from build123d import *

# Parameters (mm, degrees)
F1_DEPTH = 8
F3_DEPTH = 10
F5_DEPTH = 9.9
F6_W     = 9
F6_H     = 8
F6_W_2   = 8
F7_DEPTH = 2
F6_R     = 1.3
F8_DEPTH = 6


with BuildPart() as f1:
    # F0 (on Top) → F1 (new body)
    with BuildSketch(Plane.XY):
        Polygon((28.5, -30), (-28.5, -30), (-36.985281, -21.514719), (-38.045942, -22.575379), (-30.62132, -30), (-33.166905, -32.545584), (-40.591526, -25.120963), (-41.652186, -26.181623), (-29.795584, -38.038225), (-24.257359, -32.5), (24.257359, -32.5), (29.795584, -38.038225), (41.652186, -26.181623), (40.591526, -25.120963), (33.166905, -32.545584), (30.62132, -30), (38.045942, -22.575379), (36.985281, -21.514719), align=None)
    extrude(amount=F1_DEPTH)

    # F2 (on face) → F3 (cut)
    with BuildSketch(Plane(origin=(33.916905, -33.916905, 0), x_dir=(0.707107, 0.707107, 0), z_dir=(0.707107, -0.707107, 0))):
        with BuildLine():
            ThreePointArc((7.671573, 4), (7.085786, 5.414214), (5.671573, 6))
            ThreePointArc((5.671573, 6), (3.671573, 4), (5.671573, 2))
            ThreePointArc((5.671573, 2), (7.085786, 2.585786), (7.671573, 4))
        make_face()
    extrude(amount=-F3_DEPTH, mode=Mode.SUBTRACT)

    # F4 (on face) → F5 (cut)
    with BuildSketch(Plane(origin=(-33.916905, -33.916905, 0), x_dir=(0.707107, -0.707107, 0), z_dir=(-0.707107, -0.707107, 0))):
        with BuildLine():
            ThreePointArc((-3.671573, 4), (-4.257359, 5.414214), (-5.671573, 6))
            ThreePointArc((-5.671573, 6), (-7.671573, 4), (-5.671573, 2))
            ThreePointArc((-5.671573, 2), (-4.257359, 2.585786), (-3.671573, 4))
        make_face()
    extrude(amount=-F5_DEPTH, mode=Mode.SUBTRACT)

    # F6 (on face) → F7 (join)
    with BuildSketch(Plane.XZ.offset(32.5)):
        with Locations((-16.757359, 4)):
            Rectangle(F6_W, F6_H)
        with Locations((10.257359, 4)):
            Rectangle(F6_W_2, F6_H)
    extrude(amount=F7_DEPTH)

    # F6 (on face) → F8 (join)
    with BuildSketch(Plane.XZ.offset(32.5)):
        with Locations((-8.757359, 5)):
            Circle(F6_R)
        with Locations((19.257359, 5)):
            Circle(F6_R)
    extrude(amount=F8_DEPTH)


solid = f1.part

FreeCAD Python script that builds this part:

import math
import FreeCAD as App
import Part
import Sketcher
from FreeCAD import Vector


def add_polygon(sketch, points):
    """Adds a closed chain of lines whose ends are joined by coincident constraints."""
    first, n = sketch.GeometryCount, len(points)
    for a, b in zip(points, points[1:] + points[:1]):
        sketch.addGeometry(Part.LineSegment(App.Vector(*a, 0), App.Vector(*b, 0)), False)
    for i in range(n):
        sketch.addConstraint(Sketcher.Constraint("Coincident", first + i, 2, first + (i + 1) % n, 1))

doc = App.newDocument("Part")
body = doc.addObject("PartDesign::Body", "Body")

# Sketch on XY plane
sketch1 = body.newObject("Sketcher::SketchObject", "Sketch")
sketch1.AttachmentSupport = (doc.getObject("XY_Plane"), [""])
sketch1.MapMode = "FlatFace"
add_polygon(sketch1, [(28.5, -30), (-28.5, -30), (-37, -21.5), (-38, -22.6), (-30.6, -30), (-33.2, -32.5), (-40.6, -25.1), (-41.7, -26.2), (-29.8, -38), (-24.3, -32.5), (24.3, -32.5), (29.8, -38), (41.7, -26.2), (40.6, -25.1), (33.2, -32.5), (30.6, -30), (38, -22.6), (37, -21.5)])  # lines 0-17
sketch1.addConstraint([
    Sketcher.Constraint("Horizontal", 0),
    Sketcher.Constraint("Horizontal", 9),
    Sketcher.Constraint("Symmetric", 7, 2, 10, 2, -2),
    Sketcher.Constraint("Symmetric", 6, 2, 11, 2, -2),
    Sketcher.Constraint("Symmetric", 5, 2, 12, 2, -2),
    Sketcher.Constraint("Symmetric", 4, 2, 13, 2, -2),
    Sketcher.Constraint("Symmetric", 3, 2, 14, 2, -2),
    Sketcher.Constraint("Symmetric", 2, 2, 15, 2, -2),
    Sketcher.Constraint("Symmetric", 1, 2, 16, 2, -2),
    Sketcher.Constraint("Perpendicular", 1, 2),
    Sketcher.Constraint("Perpendicular", 2, 3),
    Sketcher.Constraint("Perpendicular", 3, 4),
    Sketcher.Constraint("Perpendicular", 4, 5),
    Sketcher.Constraint("Perpendicular", 5, 6),
    Sketcher.Constraint("Perpendicular", 6, 7),
    Sketcher.Constraint("Perpendicular", 7, 8),
    Sketcher.Constraint("Perpendicular", 8, 10),
    Sketcher.Constraint("Perpendicular", 10, 11),
    Sketcher.Constraint("Perpendicular", 16, 17),
    Sketcher.Constraint("Horizontal", 0, 2, 3, 2),
    Sketcher.Constraint("Equal", 3, 5),
    Sketcher.Constraint("Equal", 2, 6),
    Sketcher.Constraint("DistanceX", 0, 2, 0, 1, 57.0),
    Sketcher.Constraint("Distance", 1, 11.999999),
    Sketcher.Constraint("DistanceY", 0, 2, -1, 1, 30.0),
    Sketcher.Constraint("Distance", 2, 1.5),
    Sketcher.Constraint("Distance", 4, 3.6),
    Sketcher.Constraint("DistanceY", 8, 2, -1, 1, 32.5),
    Sketcher.Constraint("DistanceX", 9, 1, 9, 2, 48.514718),
])
pad1 = body.newObject("PartDesign::Pad", "Pad")
pad1.Profile = sketch1
pad1.Length = 8

# Sketch on an angled plane
sketch2 = body.newObject("Sketcher::SketchObject", "Sketch001")
sketch2.Placement = App.Placement(Vector(33.916905, -33.916905, 0), App.Rotation(Vector(0.707106781, 0.707106781, 0), Vector(0, 0, 0.999999999), Vector(0.707106781, -0.707106781, 0), "ZXY"))
sketch2.addGeometry([
    Part.ArcOfCircle(Part.Circle(Vector(5.7, 4, 0), Vector(0, 0, 1), 2), math.radians(0), math.radians(90)),
    Part.ArcOfCircle(Part.Circle(Vector(5.7, 4, 0), Vector(0, 0, 1), 2), math.radians(90), math.radians(270)),
    Part.ArcOfCircle(Part.Circle(Vector(5.7, 4, 0), Vector(0, 0, 1), 2), math.radians(-90), math.radians(0)),
], False)
sketch2.addConstraint([
    Sketcher.Constraint("Tangent", 0, 2, 1, 1),
    Sketcher.Constraint("Tangent", 1, 2, 2, 1),
    Sketcher.Constraint("Tangent", 2, 2, 0, 1),
    Sketcher.Constraint("Horizontal", 1, 3, 2, 2),
    Sketcher.Constraint("Vertical", 2, 3, 0, 2),
    Sketcher.Constraint("Vertical", 0, 2, 1, 2),
    Sketcher.Constraint("Radius", 0, 2.0),
    Sketcher.Constraint("DistanceY", -1, 1, 0, 3, 4.0),
    Sketcher.Constraint("DistanceX", -1, 1, 0, 3, 5.671573),
])
pocket1 = body.newObject("PartDesign::Pocket", "Pocket")
pocket1.Profile = sketch2
pocket1.Length = 10

# Sketch on an angled plane
sketch3 = body.newObject("Sketcher::SketchObject", "Sketch002")
sketch3.Placement = App.Placement(Vector(-33.916905, -33.916905, 0), App.Rotation(Vector(0.707106781, -0.707106781, 0), Vector(0, 0, 0.999999999), Vector(-0.707106781, -0.707106781, 0), "ZXY"))
sketch3.addGeometry([
    Part.ArcOfCircle(Part.Circle(Vector(-5.7, 4, 0), Vector(0, 0, 1), 2), math.radians(0), math.radians(90)),
    Part.ArcOfCircle(Part.Circle(Vector(-5.7, 4, 0), Vector(0, 0, 1), 2), math.radians(90), math.radians(270)),
    Part.ArcOfCircle(Part.Circle(Vector(-5.7, 4, 0), Vector(0, 0, 1), 2), math.radians(-90), math.radians(0)),
], False)
sketch3.addConstraint([
    Sketcher.Constraint("Tangent", 0, 2, 1, 1),
    Sketcher.Constraint("Tangent", 1, 2, 2, 1),
    Sketcher.Constraint("Tangent", 2, 2, 0, 1),
    Sketcher.Constraint("Horizontal", 1, 3, 2, 2),
    Sketcher.Constraint("Vertical", 2, 3, 0, 2),
    Sketcher.Constraint("Vertical", 0, 2, 1, 2),
    Sketcher.Constraint("Radius", 0, 1.999999),
    Sketcher.Constraint("DistanceY", -1, 1, 0, 3, 4.000001),
    Sketcher.Constraint("DistanceX", 0, 3, -1, 1, 5.671572),
])
pocket2 = body.newObject("PartDesign::Pocket", "Pocket001")
pocket2.Profile = sketch3
pocket2.Length = 9.9

# Sketch on XZ plane
sketch4 = body.newObject("Sketcher::SketchObject", "Sketch003")
sketch4.AttachmentSupport = (doc.getObject("XZ_Plane"), [""])
sketch4.MapMode = "FlatFace"
sketch4.AttachmentOffset = App.Placement(Vector(0, 0, 32.5), App.Rotation())
add_polygon(sketch4, [(-21, 8), (-21, 0), (-12, 0), (-12, 8)])  # lines 0-3
add_polygon(sketch4, [(6, 8), (6, 0), (14, 0), (14, 8)])  # lines 4-7
sketch4.addConstraint([
    Sketcher.Constraint("Vertical", 0),
    Sketcher.Constraint("Horizontal", 1),
    Sketcher.Constraint("Vertical", 2),
    Sketcher.Constraint("Horizontal", 3),
    Sketcher.Constraint("Vertical", 4),
    Sketcher.Constraint("Horizontal", 5),
    Sketcher.Constraint("Vertical", 6),
    Sketcher.Constraint("Horizontal", 7),
    Sketcher.Constraint("PointOnObject", 0, 2, -1),
    Sketcher.Constraint("PointOnObject", 4, 2, -1),
    Sketcher.Constraint("Horizontal", 3, 2, 6, 2),
    Sketcher.Constraint("Equal", 7, 0),
    Sketcher.Constraint("DistanceX", 1, 1, 1, 2, 9.0),
    Sketcher.Constraint("DistanceX", 5, 1, 5, 2, 8.0),
    Sketcher.Constraint("DistanceX", 0, 2, -1, 1, 21.257359),
    Sketcher.Constraint("DistanceX", -1, 1, 4, 2, 6.257359),
])
pad2 = body.newObject("PartDesign::Pad", "Pad001")
pad2.Profile = sketch4
pad2.Length = 2

# Sketch on XZ plane
sketch5 = body.newObject("Sketcher::SketchObject", "Sketch004")
sketch5.AttachmentSupport = (doc.getObject("XZ_Plane"), [""])
sketch5.MapMode = "FlatFace"
sketch5.AttachmentOffset = App.Placement(Vector(0, 0, 32.5), App.Rotation())
sketch5.addGeometry([
    Part.Circle(Vector(-8.8, 5, 0), Vector(0, 0, 1), 1.3),
    Part.Circle(Vector(19.3, 5, 0), Vector(0, 0, 1), 1.3),
], False)
sketch5.addConstraint([
    Sketcher.Constraint("Equal", 0, 1),
    Sketcher.Constraint("Horizontal", 0, 3, 1, 3),
    Sketcher.Constraint("Diameter", 0, 2.6),
    Sketcher.Constraint("DistanceY", -1, 1, 0, 3, 5.0),
    Sketcher.Constraint("DistanceX", 0, 3, -1, 1, 8.757359),
    Sketcher.Constraint("DistanceX", -1, 1, 1, 3, 19.257359),
])
pad3 = body.newObject("PartDesign::Pad", "Pad002")
pad3.Profile = sketch5
pad3.Length = 6

doc.recompute()
